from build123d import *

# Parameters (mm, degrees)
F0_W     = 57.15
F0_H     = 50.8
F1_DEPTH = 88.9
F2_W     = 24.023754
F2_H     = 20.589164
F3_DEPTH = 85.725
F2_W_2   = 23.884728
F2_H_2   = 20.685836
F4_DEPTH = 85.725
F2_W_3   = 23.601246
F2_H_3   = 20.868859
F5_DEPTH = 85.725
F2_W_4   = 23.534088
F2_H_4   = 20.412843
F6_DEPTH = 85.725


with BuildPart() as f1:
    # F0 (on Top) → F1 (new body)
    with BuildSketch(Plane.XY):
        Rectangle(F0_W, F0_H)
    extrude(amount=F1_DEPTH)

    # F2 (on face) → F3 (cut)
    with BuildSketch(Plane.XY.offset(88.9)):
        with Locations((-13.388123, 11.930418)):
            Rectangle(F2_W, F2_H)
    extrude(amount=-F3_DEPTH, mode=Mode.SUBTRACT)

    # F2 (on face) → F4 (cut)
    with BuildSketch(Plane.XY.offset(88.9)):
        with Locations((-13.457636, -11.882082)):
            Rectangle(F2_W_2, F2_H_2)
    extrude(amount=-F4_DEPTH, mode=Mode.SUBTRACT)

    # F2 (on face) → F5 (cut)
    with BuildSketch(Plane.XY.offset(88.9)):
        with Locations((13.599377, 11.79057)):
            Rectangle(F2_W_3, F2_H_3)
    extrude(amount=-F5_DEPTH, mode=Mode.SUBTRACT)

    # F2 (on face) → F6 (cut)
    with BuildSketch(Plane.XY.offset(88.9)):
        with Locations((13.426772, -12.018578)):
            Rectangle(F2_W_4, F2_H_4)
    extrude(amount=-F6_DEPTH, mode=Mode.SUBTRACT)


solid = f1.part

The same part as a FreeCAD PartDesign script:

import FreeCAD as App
import Part
import Sketcher
Q = App.Units.Quantity


def add_polygon(sketch, points):
    """Adds a closed chain of lines whose ends are joined by coincident constraints."""
    first, n = sketch.GeometryCount, len(points)
    for a, b in zip(points, points[1:] + points[:1]):
        sketch.addGeometry(Part.LineSegment(App.Vector(*a, 0), App.Vector(*b, 0)), False)
    for i in range(n):
        sketch.addConstraint(Sketcher.Constraint("Coincident", first + i, 2, first + (i + 1) % n, 1))

doc = App.newDocument("Part")
body = doc.addObject("PartDesign::Body", "Body")

sketch1 = body.newObject("Sketcher::SketchObject", "Sketch")
sketch1.AttachmentSupport = (doc.getObject("XY_Plane"), [""])
sketch1.MapMode = "FlatFace"
add_polygon(sketch1, [(-28.575, 25.4), (-28.575, -25.4), (28.575, -25.4), (28.575, 25.4)])
sketch1.addConstraint(Sketcher.Constraint("Vertical", 0))
sketch1.addConstraint(Sketcher.Constraint("Horizontal", 1))
sketch1.addConstraint(Sketcher.Constraint("Vertical", 2))
sketch1.addConstraint(Sketcher.Constraint("Horizontal", 3))
sketch1.addConstraint(Sketcher.Constraint("Symmetric", 0, 2, 2, 2, -1, 1))
sketch1.addConstraint(Sketcher.Constraint("DistanceY", 0, 2, 0, 1, Q("2 in")))
sketch1.addConstraint(Sketcher.Constraint("DistanceX", 1, 1, 1, 2, Q("2.25 in")))
pad1 = body.newObject("PartDesign::Pad", "Pad")
pad1.Profile = sketch1
pad1.Length = Q("3.5 in")

sketch2 = body.newObject("Sketcher::SketchObject", "Sketch001")
sketch2.AttachmentSupport = (doc.getObject("XY_Plane"), [""])
sketch2.MapMode = "FlatFace"
sketch2.AttachmentOffset = App.Placement(App.Vector(0, 0, 3.5 * 25.4), App.Rotation())
add_polygon(sketch2, [(-25.4, 22.225), (-25.4, 1.635836), (-1.376246, 1.635836), (-1.376246, 22.225)])
sketch2.addConstraint(Sketcher.Constraint("Vertical", 0))
sketch2.addConstraint(Sketcher.Constraint("Horizontal", 1))
sketch2.addConstraint(Sketcher.Constraint("Vertical", 2))
sketch2.addConstraint(Sketcher.Constraint("Horizontal", 3))
sketch2.addConstraint(Sketcher.Constraint("DistanceX", 0, 2, -1, 1, Q("1 in")))
sketch2.addConstraint(Sketcher.Constraint("DistanceY", -1, 1, 2, 2, Q("0.875 in")))
sketch2.addConstraint(Sketcher.Constraint("DistanceX", 1, 1, 1, 2, Q("24.023754 mm")))
sketch2.addConstraint(Sketcher.Constraint("DistanceY", 0, 2, 0, 1, Q("20.589164 mm")))
pocket1 = body.newObject("PartDesign::Pocket", "Pocket")
pocket1.Profile = sketch2
pocket1.Length = Q("3.375 in")

sketch3 = body.newObject("Sketcher::SketchObject", "Sketch002")
sketch3.AttachmentSupport = (doc.getObject("XY_Plane"), [""])
sketch3.MapMode = "FlatFace"
sketch3.AttachmentOffset = App.Placement(App.Vector(0, 0, 3.5 * 25.4), App.Rotation())
add_polygon(sketch3, [(-25.4, -1.539164), (-25.4, -22.225), (-1.515272, -22.225), (-1.515272, -1.539164)])
sketch3.addConstraint(Sketcher.Constraint("Vertical", 0))
sketch3.addConstraint(Sketcher.Constraint("Horizontal", 1))
sketch3.addConstraint(Sketcher.Constraint("Vertical", 2))
sketch3.addConstraint(Sketcher.Constraint("Horizontal", 3))
sketch3.addConstraint(Sketcher.Constraint("DistanceX", 0, 2, -1, 1, Q("1 in")))
sketch3.addConstraint(Sketcher.Constraint("DistanceY", 0, 2, -1, 1, Q("0.875 in")))
sketch3.addConstraint(Sketcher.Constraint("DistanceX", 1, 1, 1, 2, Q("23.884728 mm")))
sketch3.addConstraint(Sketcher.Constraint("DistanceY", 0, 2, 0, 1, Q("20.685836 mm")))
pocket2 = body.newObject("PartDesign::Pocket", "Pocket001")
pocket2.Profile = sketch3
pocket2.Length = Q("3.375 in")

sketch4 = body.newObject("Sketcher::SketchObject", "Sketch003")
sketch4.AttachmentSupport = (doc.getObject("XY_Plane"), [""])
sketch4.MapMode = "FlatFace"
sketch4.AttachmentOffset = App.Placement(App.Vector(0, 0, 3.5 * 25.4), App.Rotation())
add_polygon(sketch4, [(1.798754, 22.224999), (1.798754, 1.35614), (25.4, 1.35614), (25.4, 22.224999)])
sketch4.addConstraint(Sketcher.Constraint("Vertical", 0))
sketch4.addConstraint(Sketcher.Constraint("Horizontal", 1))
sketch4.addConstraint(Sketcher.Constraint("Vertical", 2))
sketch4.addConstraint(Sketcher.Constraint("Horizontal", 3))
sketch4.addConstraint(Sketcher.Constraint("DistanceX", -1, 1, 1, 2, Q("1 in")))
sketch4.addConstraint(Sketcher.Constraint("DistanceY", -1, 1, 2, 2, Q("0.875 in")))
sketch4.addConstraint(Sketcher.Constraint("DistanceY", 0, 2, 0, 1, Q("20.868859 mm")))
sketch4.addConstraint(Sketcher.Constraint("DistanceX", 1, 1, 1, 2, Q("23.601246 mm")))
pocket3 = body.newObject("PartDesign::Pocket", "Pocket002")
pocket3.Profile = sketch4
pocket3.Length = Q("3.375 in")

sketch5 = body.newObject("Sketcher::SketchObject", "Sketch004")
sketch5.AttachmentSupport = (doc.getObject("XY_Plane"), [""])
sketch5.MapMode = "FlatFace"
sketch5.AttachmentOffset = App.Placement(App.Vector(0, 0, 3.5 * 25.4), App.Rotation())
add_polygon(sketch5, [(1.659728, -1.812156), (1.659728, -22.224999), (25.193816, -22.224999), (25.193816, -1.812156)])
sketch5.addConstraint(Sketcher.Constraint("Vertical", 0))
sketch5.addConstraint(Sketcher.Constraint("Horizontal", 1))
sketch5.addConstraint(Sketcher.Constraint("Vertical", 2))
sketch5.addConstraint(Sketcher.Constraint("Horizontal", 3))
sketch5.addConstraint(Sketcher.Constraint("DistanceY", 0, 2, -1, 1, Q("0.875 in")))
sketch5.addConstraint(Sketcher.Constraint("DistanceX", 1, 1, 1, 2, Q("23.534088 mm")))
sketch5.addConstraint(Sketcher.Constraint("DistanceY", 0, 2, 0, 1, Q("20.412843 mm")))
sketch5.addConstraint(Sketcher.Constraint("DistanceX", -1, 1, 0, 2, Q("1.659728 mm")))
pocket4 = body.newObject("PartDesign::Pocket", "Pocket003")
pocket4.Profile = sketch5
pocket4.Length = Q("3.375 in")

doc.recompute()
